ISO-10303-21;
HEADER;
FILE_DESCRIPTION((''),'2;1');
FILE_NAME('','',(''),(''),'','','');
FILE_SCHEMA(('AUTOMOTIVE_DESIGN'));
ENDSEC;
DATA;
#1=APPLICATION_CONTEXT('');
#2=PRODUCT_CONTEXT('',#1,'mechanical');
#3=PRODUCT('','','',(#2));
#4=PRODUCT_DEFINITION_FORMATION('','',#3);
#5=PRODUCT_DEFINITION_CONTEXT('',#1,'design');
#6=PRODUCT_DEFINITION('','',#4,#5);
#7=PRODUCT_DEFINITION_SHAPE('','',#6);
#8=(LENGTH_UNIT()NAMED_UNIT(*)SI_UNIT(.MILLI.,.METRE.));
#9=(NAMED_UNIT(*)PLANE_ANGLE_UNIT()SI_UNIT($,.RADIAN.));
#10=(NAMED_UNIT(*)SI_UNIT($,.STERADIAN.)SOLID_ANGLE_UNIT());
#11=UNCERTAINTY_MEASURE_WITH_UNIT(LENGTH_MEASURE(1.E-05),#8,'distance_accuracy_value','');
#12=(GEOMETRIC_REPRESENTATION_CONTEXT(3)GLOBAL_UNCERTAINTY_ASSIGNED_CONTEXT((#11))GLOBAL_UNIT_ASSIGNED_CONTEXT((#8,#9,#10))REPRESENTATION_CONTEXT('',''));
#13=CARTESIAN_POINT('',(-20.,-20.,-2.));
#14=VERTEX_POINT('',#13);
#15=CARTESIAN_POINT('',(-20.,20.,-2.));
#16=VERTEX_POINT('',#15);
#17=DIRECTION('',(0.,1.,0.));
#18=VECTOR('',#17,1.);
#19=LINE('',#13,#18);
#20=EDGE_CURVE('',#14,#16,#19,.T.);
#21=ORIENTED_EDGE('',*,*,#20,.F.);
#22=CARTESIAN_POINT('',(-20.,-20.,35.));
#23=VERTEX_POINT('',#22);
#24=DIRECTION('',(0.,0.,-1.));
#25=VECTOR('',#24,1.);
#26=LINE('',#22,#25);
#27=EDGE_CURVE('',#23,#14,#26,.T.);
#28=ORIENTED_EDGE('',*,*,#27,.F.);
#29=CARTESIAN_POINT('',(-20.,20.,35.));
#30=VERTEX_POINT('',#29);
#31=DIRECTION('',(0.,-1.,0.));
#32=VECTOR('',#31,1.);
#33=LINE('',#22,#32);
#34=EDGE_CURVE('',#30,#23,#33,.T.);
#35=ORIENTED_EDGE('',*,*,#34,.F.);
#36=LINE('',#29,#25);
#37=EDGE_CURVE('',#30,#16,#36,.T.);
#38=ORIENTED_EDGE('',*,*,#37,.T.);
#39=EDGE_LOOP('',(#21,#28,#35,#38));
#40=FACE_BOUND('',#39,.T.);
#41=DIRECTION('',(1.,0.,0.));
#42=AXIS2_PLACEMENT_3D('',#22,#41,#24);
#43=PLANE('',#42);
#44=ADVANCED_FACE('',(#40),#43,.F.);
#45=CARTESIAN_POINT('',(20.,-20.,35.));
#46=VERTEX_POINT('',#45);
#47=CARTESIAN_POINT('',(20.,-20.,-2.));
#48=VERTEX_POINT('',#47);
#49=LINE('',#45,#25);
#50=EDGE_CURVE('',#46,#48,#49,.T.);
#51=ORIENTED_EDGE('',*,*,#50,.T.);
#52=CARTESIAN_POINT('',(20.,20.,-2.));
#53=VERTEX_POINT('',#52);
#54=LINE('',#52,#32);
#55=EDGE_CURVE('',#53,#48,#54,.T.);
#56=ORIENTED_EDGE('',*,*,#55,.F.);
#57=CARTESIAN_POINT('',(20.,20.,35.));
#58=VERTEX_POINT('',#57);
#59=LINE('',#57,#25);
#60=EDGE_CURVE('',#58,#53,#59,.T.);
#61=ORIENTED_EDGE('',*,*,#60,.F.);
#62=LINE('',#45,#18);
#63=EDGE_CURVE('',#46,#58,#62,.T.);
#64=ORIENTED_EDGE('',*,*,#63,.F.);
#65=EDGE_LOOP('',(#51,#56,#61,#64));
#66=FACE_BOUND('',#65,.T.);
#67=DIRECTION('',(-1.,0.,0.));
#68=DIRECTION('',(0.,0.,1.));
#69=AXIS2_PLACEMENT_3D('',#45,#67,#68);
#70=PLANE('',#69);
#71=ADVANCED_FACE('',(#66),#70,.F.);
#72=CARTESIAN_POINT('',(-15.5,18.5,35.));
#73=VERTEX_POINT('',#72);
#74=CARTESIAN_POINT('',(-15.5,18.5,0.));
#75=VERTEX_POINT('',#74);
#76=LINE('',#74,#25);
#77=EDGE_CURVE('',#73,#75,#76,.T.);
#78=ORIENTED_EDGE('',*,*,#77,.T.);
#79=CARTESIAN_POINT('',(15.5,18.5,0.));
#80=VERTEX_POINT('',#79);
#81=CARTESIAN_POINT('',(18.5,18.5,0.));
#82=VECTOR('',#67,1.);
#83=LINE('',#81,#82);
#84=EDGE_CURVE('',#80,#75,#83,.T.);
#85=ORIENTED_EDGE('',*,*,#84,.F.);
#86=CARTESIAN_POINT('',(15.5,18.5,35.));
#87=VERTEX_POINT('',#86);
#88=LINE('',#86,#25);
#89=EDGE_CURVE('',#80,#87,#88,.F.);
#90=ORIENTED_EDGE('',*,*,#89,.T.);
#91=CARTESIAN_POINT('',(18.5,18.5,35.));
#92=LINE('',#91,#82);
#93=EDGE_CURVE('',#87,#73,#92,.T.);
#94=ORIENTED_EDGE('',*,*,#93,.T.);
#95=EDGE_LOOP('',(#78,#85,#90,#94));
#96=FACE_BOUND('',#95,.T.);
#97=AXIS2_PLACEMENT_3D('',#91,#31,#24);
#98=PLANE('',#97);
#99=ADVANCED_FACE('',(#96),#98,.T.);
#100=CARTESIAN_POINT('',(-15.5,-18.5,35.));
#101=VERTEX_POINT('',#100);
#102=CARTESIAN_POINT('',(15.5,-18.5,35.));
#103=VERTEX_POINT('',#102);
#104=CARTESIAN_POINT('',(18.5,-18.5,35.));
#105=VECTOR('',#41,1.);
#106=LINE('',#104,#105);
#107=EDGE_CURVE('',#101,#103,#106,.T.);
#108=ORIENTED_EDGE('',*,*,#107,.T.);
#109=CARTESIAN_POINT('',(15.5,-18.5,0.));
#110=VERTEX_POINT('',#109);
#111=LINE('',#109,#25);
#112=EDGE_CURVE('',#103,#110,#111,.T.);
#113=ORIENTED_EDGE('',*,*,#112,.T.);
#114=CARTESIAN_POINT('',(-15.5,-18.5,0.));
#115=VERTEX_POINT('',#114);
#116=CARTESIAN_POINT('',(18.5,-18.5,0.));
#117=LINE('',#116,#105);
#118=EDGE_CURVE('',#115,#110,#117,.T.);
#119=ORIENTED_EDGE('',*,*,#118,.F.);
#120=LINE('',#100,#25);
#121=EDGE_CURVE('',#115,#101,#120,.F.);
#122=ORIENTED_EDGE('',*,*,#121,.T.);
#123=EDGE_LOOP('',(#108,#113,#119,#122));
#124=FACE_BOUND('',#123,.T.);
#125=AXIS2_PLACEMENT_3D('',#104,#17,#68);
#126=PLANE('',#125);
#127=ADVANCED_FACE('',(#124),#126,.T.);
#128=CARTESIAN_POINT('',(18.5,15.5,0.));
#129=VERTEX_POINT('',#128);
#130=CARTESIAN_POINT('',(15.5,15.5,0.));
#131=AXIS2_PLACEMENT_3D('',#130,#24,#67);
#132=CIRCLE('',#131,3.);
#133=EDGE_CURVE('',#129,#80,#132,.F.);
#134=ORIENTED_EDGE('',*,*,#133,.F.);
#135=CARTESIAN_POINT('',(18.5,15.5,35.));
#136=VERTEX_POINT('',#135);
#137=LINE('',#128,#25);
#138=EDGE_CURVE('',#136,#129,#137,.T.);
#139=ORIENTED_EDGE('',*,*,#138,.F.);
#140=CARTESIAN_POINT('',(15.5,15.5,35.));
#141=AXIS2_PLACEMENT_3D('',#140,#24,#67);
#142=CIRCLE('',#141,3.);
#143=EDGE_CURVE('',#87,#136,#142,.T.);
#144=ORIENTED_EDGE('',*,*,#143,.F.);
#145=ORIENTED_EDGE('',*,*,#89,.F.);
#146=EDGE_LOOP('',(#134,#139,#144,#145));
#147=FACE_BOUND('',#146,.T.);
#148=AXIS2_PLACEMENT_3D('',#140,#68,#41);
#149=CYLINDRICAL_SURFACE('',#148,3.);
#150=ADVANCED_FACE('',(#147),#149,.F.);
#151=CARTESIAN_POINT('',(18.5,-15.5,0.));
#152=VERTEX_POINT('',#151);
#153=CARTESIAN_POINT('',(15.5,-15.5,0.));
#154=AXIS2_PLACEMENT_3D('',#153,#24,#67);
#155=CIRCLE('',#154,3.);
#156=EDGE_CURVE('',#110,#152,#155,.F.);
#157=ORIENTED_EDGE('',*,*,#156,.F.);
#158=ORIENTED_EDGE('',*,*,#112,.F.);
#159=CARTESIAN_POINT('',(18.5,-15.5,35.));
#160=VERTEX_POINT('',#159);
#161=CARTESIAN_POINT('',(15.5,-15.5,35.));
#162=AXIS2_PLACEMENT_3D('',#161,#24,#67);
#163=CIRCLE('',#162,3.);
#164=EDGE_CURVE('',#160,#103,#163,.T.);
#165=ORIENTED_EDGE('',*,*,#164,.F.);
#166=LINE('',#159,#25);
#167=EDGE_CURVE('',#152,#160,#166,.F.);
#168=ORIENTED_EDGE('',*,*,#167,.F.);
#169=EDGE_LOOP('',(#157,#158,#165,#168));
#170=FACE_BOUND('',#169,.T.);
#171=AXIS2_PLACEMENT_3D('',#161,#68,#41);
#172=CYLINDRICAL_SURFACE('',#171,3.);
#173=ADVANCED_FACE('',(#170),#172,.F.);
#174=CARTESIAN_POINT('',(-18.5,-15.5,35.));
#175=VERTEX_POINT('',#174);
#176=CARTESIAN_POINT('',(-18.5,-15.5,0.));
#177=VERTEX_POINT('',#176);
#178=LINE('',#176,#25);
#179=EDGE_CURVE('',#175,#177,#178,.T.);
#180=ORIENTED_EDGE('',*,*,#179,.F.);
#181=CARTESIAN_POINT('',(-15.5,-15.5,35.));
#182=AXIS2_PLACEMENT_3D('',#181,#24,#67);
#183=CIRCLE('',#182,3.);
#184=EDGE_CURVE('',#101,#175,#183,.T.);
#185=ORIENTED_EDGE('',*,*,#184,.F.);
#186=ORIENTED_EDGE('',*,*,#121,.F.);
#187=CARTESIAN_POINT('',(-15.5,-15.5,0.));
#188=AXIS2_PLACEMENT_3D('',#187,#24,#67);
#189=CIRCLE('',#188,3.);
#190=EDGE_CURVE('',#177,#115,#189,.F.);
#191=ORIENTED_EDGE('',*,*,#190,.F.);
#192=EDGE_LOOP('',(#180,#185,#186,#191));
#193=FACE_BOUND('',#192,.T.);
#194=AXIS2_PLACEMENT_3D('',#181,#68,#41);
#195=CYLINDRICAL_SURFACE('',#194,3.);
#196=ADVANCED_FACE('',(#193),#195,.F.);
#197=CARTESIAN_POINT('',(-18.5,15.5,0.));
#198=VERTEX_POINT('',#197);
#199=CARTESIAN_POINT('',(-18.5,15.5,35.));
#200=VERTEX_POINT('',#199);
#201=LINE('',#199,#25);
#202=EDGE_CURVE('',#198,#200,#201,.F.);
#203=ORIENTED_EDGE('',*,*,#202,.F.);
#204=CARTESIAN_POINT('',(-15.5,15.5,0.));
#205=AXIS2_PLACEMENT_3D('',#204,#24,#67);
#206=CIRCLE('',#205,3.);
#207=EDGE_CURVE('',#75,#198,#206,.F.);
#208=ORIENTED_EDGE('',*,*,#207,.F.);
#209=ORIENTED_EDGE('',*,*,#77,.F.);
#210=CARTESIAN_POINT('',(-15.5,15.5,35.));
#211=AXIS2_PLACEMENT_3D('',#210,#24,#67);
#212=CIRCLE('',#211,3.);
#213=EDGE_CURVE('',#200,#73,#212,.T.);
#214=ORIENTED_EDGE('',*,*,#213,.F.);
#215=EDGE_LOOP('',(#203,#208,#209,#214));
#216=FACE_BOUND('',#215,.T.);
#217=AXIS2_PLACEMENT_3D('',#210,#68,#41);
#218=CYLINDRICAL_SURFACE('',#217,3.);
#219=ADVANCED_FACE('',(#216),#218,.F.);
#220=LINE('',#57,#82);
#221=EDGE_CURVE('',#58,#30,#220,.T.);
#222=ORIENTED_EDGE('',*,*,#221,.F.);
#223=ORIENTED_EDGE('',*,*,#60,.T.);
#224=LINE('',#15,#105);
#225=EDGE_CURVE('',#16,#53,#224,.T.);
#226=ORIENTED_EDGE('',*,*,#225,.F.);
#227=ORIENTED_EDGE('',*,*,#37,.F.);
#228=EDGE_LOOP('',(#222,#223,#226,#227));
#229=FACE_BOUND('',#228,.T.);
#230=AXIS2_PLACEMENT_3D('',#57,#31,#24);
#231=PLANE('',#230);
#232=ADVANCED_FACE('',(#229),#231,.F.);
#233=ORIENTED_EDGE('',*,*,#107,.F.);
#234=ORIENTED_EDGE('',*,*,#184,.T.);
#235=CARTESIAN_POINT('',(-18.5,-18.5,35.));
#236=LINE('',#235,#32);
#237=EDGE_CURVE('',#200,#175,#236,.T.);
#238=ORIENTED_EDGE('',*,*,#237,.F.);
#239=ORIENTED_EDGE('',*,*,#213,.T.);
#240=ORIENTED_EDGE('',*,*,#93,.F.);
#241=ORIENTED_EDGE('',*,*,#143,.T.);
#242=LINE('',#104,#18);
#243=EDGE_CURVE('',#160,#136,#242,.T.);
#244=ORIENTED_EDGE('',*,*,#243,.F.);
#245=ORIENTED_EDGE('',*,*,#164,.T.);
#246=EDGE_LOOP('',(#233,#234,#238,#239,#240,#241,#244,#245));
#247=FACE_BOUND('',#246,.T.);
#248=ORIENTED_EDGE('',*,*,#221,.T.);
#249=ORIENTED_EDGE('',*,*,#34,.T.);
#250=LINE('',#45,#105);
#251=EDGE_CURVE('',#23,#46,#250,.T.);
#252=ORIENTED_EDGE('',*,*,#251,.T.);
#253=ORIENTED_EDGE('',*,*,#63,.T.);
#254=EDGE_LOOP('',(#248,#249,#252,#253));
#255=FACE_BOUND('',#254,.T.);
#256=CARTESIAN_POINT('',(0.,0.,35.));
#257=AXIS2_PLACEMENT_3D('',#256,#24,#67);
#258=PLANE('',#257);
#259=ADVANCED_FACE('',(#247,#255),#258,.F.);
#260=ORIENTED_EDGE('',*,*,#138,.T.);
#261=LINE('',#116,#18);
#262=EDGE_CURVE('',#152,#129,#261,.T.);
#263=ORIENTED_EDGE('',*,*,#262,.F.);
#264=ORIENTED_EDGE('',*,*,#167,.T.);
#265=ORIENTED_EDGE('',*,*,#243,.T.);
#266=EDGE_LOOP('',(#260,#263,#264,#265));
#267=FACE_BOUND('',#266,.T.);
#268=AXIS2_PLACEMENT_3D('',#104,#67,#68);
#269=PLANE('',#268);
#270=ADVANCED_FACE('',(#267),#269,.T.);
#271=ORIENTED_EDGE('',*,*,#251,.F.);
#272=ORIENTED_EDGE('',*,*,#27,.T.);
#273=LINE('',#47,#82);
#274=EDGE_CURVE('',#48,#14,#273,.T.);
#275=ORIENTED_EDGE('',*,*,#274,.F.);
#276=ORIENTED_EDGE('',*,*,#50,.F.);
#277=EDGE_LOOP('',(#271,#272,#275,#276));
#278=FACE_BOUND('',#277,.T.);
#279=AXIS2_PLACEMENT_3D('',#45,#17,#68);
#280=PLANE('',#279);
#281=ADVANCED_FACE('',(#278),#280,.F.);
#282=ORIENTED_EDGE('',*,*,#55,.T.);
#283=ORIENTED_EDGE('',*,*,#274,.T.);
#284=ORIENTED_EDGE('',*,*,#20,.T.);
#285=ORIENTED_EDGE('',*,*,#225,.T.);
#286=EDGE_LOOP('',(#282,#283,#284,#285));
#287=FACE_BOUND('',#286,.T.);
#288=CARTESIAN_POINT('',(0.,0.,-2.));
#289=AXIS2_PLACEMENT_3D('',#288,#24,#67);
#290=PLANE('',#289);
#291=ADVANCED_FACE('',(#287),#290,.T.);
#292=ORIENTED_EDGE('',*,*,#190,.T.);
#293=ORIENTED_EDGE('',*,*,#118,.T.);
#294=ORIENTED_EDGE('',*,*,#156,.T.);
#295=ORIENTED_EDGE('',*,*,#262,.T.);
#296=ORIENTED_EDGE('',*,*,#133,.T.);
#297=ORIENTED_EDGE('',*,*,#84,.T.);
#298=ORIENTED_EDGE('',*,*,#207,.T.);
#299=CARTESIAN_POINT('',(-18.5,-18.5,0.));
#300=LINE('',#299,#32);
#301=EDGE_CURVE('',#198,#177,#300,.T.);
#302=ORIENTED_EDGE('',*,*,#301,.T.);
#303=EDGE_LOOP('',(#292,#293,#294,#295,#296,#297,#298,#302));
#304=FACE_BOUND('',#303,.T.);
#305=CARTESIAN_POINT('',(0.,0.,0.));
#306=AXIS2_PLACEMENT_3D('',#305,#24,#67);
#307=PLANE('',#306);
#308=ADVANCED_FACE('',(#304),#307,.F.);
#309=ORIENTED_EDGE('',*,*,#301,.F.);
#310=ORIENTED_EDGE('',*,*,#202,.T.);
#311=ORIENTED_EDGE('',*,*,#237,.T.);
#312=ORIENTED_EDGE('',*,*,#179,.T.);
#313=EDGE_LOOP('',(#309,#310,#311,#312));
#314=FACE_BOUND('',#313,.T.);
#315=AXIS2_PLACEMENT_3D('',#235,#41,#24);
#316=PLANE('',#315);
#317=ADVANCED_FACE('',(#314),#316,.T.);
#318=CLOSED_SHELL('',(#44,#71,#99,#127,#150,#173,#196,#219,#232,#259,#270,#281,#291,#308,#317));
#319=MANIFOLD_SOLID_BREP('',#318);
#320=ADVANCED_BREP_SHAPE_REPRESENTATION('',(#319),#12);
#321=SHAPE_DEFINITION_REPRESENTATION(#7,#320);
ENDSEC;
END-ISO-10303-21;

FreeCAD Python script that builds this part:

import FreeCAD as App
import Part
import Sketcher
Q = App.Units.Quantity


def edges_at(feature, points):
    """Names of the edges that pass closest to the given points."""
    edges = feature.Shape.Edges
    near = lambda p: min(range(len(edges)), key=lambda i: edges[i].distToShape(Part.Vertex(*p))[0])
    return sorted({f"Edge{near(p) + 1}" for p in points})


def add_polygon(sketch, points):
    """Adds a closed chain of lines whose ends are joined by coincident constraints."""
    first, n = sketch.GeometryCount, len(points)
    for a, b in zip(points, points[1:] + points[:1]):
        sketch.addGeometry(Part.LineSegment(App.Vector(*a, 0), App.Vector(*b, 0)), False)
    for i in range(n):
        sketch.addConstraint(Sketcher.Constraint("Coincident", first + i, 2, first + (i + 1) % n, 1))

doc = App.newDocument("Part")
params = doc.addObject("Spreadsheet::Sheet", "Params")
for row, (alias, value) in enumerate([
    ("sketch1_width", "40 mm"),
    ("sketch1_width2", "37 mm"),
    ("pad1_length", "35 mm"),
    ("sketch2_width", "40 mm"),
    ("pad2_length", "2 mm"),
    ("fillet_radius", "3 mm"),
], start=1):
    params.set(f"A{row}", alias)
    params.set(f"B{row}", "=" + value)
    params.setAlias(f"B{row}", alias)

body = doc.addObject("PartDesign::Body", "Body")

sketch1 = doc.addObject("Sketcher::SketchObject", "Sketch")
body.addObject(sketch1)
sketch1.AttachmentSupport = (doc.XY_Plane, [""])
sketch1.MapMode = "FlatFace"
add_polygon(sketch1, [(-20, -20), (20, -20), (20, 20), (-20, 20)])
add_polygon(sketch1, [(18, 18), (18, -18), (-18, -18), (-18, 18)])
sketch1.addConstraint([
    Sketcher.Constraint("Horizontal", 0),
    Sketcher.Constraint("Vertical", 1),
    Sketcher.Constraint("Horizontal", 2),
    Sketcher.Constraint("Vertical", 3),
    Sketcher.Constraint("Vertical", 4),
    Sketcher.Constraint("Horizontal", 5),
    Sketcher.Constraint("Vertical", 6),
    Sketcher.Constraint("Horizontal", 7),
    Sketcher.Constraint("Symmetric", 0, 2, 2, 2, -1, 1),
    Sketcher.Constraint("Symmetric", 4, 2, 6, 2, -1, 1),
    Sketcher.Constraint("Equal", 2, 1),
    Sketcher.Constraint("Equal", 7, 4),
    Sketcher.Constraint("DistanceX", 0, 1, 0, 2, Q("40 mm")),
    Sketcher.Constraint("DistanceX", 5, 2, 5, 1, Q("37 mm")),
])
sketch1.setExpression("Constraints[20]", "Params.sketch1_width")
sketch1.setExpression("Constraints[21]", "Params.sketch1_width2")
pad1 = doc.addObject("PartDesign::Pad", "Pad")
body.addObject(pad1)
pad1.Profile = sketch1
pad1.setExpression("Length", "Params.pad1_length")

sketch2 = doc.addObject("Sketcher::SketchObject", "Sketch001")
body.addObject(sketch2)
sketch2.AttachmentSupport = (doc.XY_Plane, [""])
sketch2.MapMode = "FlatFace"
add_polygon(sketch2, [(-20, -20), (-20, 20), (20, 20), (20, -20)])
sketch2.addConstraint([
    Sketcher.Constraint("Vertical", 0),
    Sketcher.Constraint("Horizontal", 1),
    Sketcher.Constraint("Vertical", 2),
    Sketcher.Constraint("Horizontal", 3),
    Sketcher.Constraint("Symmetric", 0, 2, 2, 2, -1, 1),
    Sketcher.Constraint("Equal", 3, 0),
    Sketcher.Constraint("DistanceX", 1, 1, 1, 2, Q("40 mm")),
])
sketch2.setExpression("Constraints[10]", "Params.sketch2_width")
pad2 = doc.addObject("PartDesign::Pad", "Pad001")
body.addObject(pad2)
pad2.Profile = sketch2
pad2.setExpression("Length", "Params.pad2_length")
pad2.Reversed = True
doc.recompute()

fillet = doc.addObject("PartDesign::Fillet", "Fillet")
body.addObject(fillet)
fillet.Base = (pad2, edges_at(pad2, [
    (18.5, 18.5, 17.5),
    (-18.5, 18.5, 17.5),
    (-18.5, -18.5, 17.5),
    (18.5, -18.5, 17.5),
]))
fillet.setExpression("Radius", "Params.fillet_radius")

doc.recompute()
